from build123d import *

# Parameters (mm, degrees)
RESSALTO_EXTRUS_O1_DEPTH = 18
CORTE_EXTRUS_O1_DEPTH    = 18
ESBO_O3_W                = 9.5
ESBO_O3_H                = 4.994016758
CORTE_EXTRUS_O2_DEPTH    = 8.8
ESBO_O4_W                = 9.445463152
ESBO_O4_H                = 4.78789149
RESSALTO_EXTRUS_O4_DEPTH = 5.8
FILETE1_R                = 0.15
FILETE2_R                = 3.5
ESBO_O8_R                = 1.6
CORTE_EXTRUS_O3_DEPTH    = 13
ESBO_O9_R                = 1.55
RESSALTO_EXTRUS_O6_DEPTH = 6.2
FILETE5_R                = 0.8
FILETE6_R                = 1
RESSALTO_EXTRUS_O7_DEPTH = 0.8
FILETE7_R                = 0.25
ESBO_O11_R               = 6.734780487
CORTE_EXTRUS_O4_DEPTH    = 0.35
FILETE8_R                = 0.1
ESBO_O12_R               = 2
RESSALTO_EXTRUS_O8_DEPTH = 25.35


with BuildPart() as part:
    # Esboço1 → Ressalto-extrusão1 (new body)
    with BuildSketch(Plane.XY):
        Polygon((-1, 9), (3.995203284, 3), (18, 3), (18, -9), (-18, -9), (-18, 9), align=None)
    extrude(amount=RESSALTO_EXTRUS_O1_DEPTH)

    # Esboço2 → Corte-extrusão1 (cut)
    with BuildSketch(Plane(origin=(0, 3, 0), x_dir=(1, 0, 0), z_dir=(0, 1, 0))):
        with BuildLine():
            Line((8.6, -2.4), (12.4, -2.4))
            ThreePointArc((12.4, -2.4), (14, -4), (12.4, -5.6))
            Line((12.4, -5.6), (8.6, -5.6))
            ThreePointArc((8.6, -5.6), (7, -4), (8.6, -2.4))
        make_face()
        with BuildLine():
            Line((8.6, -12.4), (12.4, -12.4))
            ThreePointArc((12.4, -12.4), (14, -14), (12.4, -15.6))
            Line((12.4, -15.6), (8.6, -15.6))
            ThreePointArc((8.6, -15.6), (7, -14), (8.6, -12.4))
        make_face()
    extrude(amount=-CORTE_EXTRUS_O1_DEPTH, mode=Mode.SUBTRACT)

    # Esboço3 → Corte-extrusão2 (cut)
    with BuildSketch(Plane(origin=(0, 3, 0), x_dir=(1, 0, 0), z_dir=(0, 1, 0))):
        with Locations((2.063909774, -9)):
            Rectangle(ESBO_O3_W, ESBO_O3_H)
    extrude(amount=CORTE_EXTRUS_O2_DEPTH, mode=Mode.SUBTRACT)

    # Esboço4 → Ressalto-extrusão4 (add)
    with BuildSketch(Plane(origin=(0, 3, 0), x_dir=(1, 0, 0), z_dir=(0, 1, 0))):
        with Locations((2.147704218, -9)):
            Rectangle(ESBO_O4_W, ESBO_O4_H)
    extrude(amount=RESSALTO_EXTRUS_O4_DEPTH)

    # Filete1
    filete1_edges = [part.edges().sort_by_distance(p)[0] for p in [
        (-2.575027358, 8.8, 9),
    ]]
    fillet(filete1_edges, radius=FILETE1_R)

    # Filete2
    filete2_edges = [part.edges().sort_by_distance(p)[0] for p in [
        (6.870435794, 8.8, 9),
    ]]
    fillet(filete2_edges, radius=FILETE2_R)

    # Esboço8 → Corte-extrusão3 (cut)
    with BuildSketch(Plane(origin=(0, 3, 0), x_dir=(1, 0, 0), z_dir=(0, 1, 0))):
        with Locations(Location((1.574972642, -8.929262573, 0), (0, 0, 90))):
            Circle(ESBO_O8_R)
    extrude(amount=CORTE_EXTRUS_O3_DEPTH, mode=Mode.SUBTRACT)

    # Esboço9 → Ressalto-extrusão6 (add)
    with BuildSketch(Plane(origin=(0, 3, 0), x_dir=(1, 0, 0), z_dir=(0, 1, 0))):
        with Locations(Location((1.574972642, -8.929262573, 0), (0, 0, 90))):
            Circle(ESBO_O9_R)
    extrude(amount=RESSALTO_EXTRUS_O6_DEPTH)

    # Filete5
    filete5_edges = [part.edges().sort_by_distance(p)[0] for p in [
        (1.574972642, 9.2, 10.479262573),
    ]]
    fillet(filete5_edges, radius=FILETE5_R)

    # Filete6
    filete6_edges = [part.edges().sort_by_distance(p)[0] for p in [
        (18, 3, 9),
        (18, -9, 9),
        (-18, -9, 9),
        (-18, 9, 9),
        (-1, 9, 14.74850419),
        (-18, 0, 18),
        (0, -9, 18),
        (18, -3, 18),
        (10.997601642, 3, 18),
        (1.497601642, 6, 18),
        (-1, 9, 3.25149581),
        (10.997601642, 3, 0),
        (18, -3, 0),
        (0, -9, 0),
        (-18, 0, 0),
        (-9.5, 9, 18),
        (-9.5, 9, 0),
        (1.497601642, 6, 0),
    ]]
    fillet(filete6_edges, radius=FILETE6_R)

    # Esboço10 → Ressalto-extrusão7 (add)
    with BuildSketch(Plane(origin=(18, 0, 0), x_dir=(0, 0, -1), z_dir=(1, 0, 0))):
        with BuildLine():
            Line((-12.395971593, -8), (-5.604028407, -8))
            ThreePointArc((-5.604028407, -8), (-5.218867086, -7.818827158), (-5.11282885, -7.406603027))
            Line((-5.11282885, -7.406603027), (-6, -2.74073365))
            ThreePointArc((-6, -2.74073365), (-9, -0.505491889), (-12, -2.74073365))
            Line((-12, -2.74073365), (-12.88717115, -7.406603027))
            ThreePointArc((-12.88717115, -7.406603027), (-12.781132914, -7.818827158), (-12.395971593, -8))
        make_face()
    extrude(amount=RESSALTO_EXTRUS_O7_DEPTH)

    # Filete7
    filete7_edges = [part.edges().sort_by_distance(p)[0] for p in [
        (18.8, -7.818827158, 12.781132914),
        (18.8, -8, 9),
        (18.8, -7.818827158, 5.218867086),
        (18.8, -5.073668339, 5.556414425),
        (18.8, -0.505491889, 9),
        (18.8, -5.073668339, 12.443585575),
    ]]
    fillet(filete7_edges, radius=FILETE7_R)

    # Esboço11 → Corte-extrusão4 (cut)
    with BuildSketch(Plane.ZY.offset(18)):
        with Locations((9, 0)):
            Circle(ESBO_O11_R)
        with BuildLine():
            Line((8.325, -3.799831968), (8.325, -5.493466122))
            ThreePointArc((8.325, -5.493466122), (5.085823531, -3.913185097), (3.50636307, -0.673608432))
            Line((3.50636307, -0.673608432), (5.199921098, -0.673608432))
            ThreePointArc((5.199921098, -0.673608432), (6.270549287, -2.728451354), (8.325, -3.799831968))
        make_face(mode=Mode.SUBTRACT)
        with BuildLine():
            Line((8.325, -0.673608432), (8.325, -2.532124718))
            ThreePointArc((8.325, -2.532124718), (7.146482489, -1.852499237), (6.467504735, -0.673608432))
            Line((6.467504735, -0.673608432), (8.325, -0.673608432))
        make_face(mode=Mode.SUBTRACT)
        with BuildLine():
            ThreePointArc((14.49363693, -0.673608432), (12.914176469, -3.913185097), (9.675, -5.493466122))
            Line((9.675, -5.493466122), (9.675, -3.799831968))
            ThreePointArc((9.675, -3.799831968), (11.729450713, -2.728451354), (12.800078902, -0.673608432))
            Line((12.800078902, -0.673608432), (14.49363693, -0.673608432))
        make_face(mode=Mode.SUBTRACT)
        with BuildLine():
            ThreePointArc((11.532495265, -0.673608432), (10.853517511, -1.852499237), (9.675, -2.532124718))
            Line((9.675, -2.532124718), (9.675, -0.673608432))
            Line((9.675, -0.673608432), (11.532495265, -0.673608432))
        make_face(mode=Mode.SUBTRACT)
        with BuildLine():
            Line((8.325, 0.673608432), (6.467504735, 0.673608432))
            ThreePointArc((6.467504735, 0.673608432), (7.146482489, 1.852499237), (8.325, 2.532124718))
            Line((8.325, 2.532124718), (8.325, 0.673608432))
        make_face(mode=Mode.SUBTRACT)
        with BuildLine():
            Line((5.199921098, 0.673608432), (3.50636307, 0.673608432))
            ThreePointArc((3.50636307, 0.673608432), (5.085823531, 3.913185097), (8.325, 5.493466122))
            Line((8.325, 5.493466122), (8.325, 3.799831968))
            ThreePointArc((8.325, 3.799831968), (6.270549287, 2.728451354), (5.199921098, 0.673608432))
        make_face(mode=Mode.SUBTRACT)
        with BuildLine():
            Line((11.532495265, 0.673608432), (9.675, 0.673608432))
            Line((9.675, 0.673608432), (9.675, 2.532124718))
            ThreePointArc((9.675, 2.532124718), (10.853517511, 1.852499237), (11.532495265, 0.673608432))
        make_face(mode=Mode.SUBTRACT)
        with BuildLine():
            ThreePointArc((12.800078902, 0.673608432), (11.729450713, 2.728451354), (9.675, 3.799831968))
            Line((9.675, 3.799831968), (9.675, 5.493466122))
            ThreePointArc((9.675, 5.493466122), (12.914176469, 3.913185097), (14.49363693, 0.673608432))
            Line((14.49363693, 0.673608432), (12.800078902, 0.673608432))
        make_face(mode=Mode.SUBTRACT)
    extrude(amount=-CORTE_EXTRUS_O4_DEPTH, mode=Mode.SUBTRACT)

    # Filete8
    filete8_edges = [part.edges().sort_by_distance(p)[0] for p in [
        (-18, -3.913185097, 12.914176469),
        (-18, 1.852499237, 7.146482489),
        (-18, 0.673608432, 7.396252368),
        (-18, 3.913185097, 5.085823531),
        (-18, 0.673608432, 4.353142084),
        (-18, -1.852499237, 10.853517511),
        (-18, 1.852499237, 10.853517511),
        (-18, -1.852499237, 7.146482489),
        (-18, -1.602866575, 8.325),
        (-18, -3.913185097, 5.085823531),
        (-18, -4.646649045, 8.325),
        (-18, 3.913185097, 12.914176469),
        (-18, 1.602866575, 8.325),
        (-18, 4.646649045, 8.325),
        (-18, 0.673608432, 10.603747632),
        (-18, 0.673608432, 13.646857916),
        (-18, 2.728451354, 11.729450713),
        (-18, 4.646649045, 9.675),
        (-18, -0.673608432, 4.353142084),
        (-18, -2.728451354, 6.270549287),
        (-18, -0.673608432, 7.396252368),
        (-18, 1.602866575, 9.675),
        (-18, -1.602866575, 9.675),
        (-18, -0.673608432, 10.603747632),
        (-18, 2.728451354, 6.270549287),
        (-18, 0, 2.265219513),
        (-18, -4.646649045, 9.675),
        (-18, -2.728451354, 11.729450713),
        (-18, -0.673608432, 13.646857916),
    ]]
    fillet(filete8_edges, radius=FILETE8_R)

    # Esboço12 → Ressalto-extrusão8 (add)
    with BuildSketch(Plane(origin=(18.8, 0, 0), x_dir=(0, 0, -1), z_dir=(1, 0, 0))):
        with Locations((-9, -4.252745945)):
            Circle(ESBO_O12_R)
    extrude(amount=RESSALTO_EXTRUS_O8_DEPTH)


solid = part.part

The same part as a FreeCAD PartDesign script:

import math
import FreeCAD as App
import Part
import Sketcher
from FreeCAD import Vector
Q = App.Units.Quantity


def edges_at(feature, points):
    """Names of the edges that pass closest to the given points."""
    edges = feature.Shape.Edges
    near = lambda p: min(range(len(edges)), key=lambda i: edges[i].distToShape(Part.Vertex(*p))[0])
    return sorted({f"Edge{near(p) + 1}" for p in points})

doc = App.newDocument("Part")
body = doc.addObject("PartDesign::Body", "Body")

# Sketch on XY plane
sketch1 = body.newObject("Sketcher::SketchObject", "Sketch")
sketch1.AttachmentSupport = (doc.getObject("XY_Plane"), [""])
sketch1.MapMode = "FlatFace"
sketch1.addGeometry([
    Part.LineSegment(Vector(4, 3, 0), Vector(-1, 9, 0)),  # 0
    Part.LineSegment(Vector(-1, 9, 0), Vector(-18, 9, 0)),  # 1
    Part.LineSegment(Vector(-18, 9, 0), Vector(-18, -9, 0)),  # 2
    Part.LineSegment(Vector(-18, -9, 0), Vector(18, -9, 0)),  # 3
    Part.LineSegment(Vector(18, -9, 0), Vector(18, 3, 0)),  # 4
    Part.LineSegment(Vector(18, 3, 0), Vector(4, 3, 0)),  # 5
], False)
sketch1.addConstraint([
    Sketcher.Constraint("Coincident", 0, 2, 1, 1),
    Sketcher.Constraint("Coincident", 1, 2, 2, 1),
    Sketcher.Constraint("Coincident", 2, 2, 3, 1),
    Sketcher.Constraint("Coincident", 3, 2, 4, 1),
    Sketcher.Constraint("Coincident", 4, 2, 5, 1),
    Sketcher.Constraint("Coincident", 5, 2, 0, 1),
    Sketcher.Constraint("Horizontal", 1),
    Sketcher.Constraint("Vertical", 2),
    Sketcher.Constraint("Horizontal", 3),
    Sketcher.Constraint("Vertical", 4),
    Sketcher.Constraint("Horizontal", 5),
    Sketcher.Constraint("Symmetric", 1, 2, 3, 2, -1, 1),
    Sketcher.Constraint("DistanceX", 1, 2, 1, 1, Q("17 mm")),
    Sketcher.Constraint("DistanceX", 3, 1, 3, 2, Q("36 mm")),
    Sketcher.Constraint("DistanceY", 2, 2, 2, 1, Q("18 mm")),
    Sketcher.Constraint("DistanceY", 4, 1, 4, 2, Q("12 mm")),
    Sketcher.Constraint("Distance", 0, Q("7.80718 mm")),
])
pad1 = body.newObject("PartDesign::Pad", "Pad")
pad1.Profile = sketch1
pad1.Length = 18

# Sketch on XZ plane
sketch2 = body.newObject("Sketcher::SketchObject", "Sketch001")
sketch2.AttachmentSupport = (doc.getObject("XZ_Plane"), [""])
sketch2.MapMode = "FlatFace"
sketch2.AttachmentOffset = App.Placement(Vector(0, 0, -3), App.Rotation())
sketch2.addGeometry([
    Part.LineSegment(Vector(12.4, 2.4, 0), Vector(8.6, 2.4, 0)),  # 0
    Part.ArcOfCircle(Part.Circle(Vector(8.6, 4, 0), Vector(0, 0, 1), 1.6), math.radians(90), math.radians(270)),  # 1
    Part.LineSegment(Vector(8.6, 5.6, 0), Vector(12.4, 5.6, 0)),  # 2
    Part.ArcOfCircle(Part.Circle(Vector(12.4, 4, 0), Vector(0, 0, 1), 1.6), math.radians(-90), math.radians(90)),  # 3
    Part.LineSegment(Vector(12.4, 12.4, 0), Vector(8.6, 12.4, 0)),  # 4
    Part.ArcOfCircle(Part.Circle(Vector(8.6, 14, 0), Vector(0, 0, 1), 1.6), math.radians(90), math.radians(270)),  # 5
    Part.LineSegment(Vector(8.6, 15.6, 0), Vector(12.4, 15.6, 0)),  # 6
    Part.ArcOfCircle(Part.Circle(Vector(12.4, 14, 0), Vector(0, 0, 1), 1.6), math.radians(-90), math.radians(90)),  # 7
], False)
sketch2.addConstraint([
    Sketcher.Constraint("Tangent", 0, 2, 1, 2),
    Sketcher.Constraint("Tangent", 1, 1, 2, 1),
    Sketcher.Constraint("Tangent", 2, 2, 3, 2),
    Sketcher.Constraint("Tangent", 3, 1, 0, 1),
    Sketcher.Constraint("Tangent", 4, 2, 5, 2),
    Sketcher.Constraint("Tangent", 5, 1, 6, 1),
    Sketcher.Constraint("Tangent", 6, 2, 7, 2),
    Sketcher.Constraint("Tangent", 7, 1, 4, 1),
    Sketcher.Constraint("Horizontal", 0),
    Sketcher.Constraint("Horizontal", 2),
    Sketcher.Constraint("Horizontal", 4),
    Sketcher.Constraint("Horizontal", 6),
    Sketcher.Constraint("Equal", 3, 5),
    Sketcher.Constraint("Vertical", 1, 3, 5, 3),
    Sketcher.Constraint("Vertical", 3, 3, 7, 3),
    Sketcher.Constraint("Radius", 1, Q("1.6 mm")),
    Sketcher.Constraint("DistanceX", 0, 2, 0, 1, Q("3.8 mm")),
    Sketcher.Constraint("DistanceY", -1, 1, 1, 3, Q("4 mm")),
    Sketcher.Constraint("DistanceY", -1, 1, 5, 3, Q("14 mm")),
    Sketcher.Constraint("DistanceX", -1, 1, 1, 3, Q("8.6 mm")),
])
pocket1 = body.newObject("PartDesign::Pocket", "Pocket")
pocket1.Profile = sketch2
pocket1.Length = 18
pocket1.Reversed = True

# Sketch on XZ plane
sketch3 = body.newObject("Sketcher::SketchObject", "Sketch002")
sketch3.AttachmentSupport = (doc.getObject("XZ_Plane"), [""])
sketch3.MapMode = "FlatFace"
sketch3.AttachmentOffset = App.Placement(Vector(0, 0, -3), App.Rotation())
sketch3.addGeometry([
    Part.LineSegment(Vector(-2.7, 6.5, 0), Vector(-2.7, 11.5, 0)),
    Part.LineSegment(Vector(-2.7, 11.5, 0), Vector(6.8, 11.5, 0)),
    Part.LineSegment(Vector(6.8, 11.5, 0), Vector(6.8, 6.5, 0)),
    Part.LineSegment(Vector(6.8, 6.5, 0), Vector(-2.7, 6.5, 0)),
], False)
sketch3.addConstraint([
    Sketcher.Constraint("Coincident", 0, 2, 1, 1),
    Sketcher.Constraint("Coincident", 1, 2, 2, 1),
    Sketcher.Constraint("Coincident", 2, 2, 3, 1),
    Sketcher.Constraint("Coincident", 3, 2, 0, 1),
    Sketcher.Constraint("Vertical", 0),
    Sketcher.Constraint("Horizontal", 1),
    Sketcher.Constraint("Vertical", 2),
    Sketcher.Constraint("Horizontal", 3),
    Sketcher.Constraint("DistanceX", 1, 1, 1, 2, Q("9.5 mm")),
    Sketcher.Constraint("DistanceY", 0, 1, 0, 2, Q("4.994017 mm")),
    Sketcher.Constraint("DistanceX", 0, 2, -1, 1, Q("2.68609 mm")),
    Sketcher.Constraint("DistanceY", -1, 1, 0, 2, Q("11.497008 mm")),
])
pocket2 = body.newObject("PartDesign::Pocket", "Pocket001")
pocket2.Profile = sketch3
pocket2.Length = 8.8

# Sketch on XZ plane
sketch4 = body.newObject("Sketcher::SketchObject", "Sketch003")
sketch4.AttachmentSupport = (doc.getObject("XZ_Plane"), [""])
sketch4.MapMode = "FlatFace"
sketch4.AttachmentOffset = App.Placement(Vector(0, 0, -3), App.Rotation())
sketch4.addGeometry([
    Part.LineSegment(Vector(-2.6, 6.6, 0), Vector(-2.6, 11.4, 0)),
    Part.LineSegment(Vector(-2.6, 11.4, 0), Vector(6.9, 11.4, 0)),
    Part.LineSegment(Vector(6.9, 11.4, 0), Vector(6.9, 6.6, 0)),
    Part.LineSegment(Vector(6.9, 6.6, 0), Vector(-2.6, 6.6, 0)),
], False)
sketch4.addConstraint([
    Sketcher.Constraint("Coincident", 0, 2, 1, 1),
    Sketcher.Constraint("Coincident", 1, 2, 2, 1),
    Sketcher.Constraint("Coincident", 2, 2, 3, 1),
    Sketcher.Constraint("Coincident", 3, 2, 0, 1),
    Sketcher.Constraint("Vertical", 0),
    Sketcher.Constraint("Horizontal", 1),
    Sketcher.Constraint("Vertical", 2),
    Sketcher.Constraint("Horizontal", 3),
    Sketcher.Constraint("DistanceY", 0, 1, 0, 2, Q("4.787891 mm")),
    Sketcher.Constraint("DistanceX", 1, 1, 1, 2, Q("9.445463 mm")),
    Sketcher.Constraint("DistanceX", 0, 2, -1, 1, Q("2.575027 mm")),
    Sketcher.Constraint("DistanceY", -1, 1, 0, 2, Q("11.393946 mm")),
])
pad2 = body.newObject("PartDesign::Pad", "Pad001")
pad2.Profile = sketch4
pad2.Length = 5.8
pad2.Reversed = True
doc.recompute()

fillet = body.newObject("PartDesign::Fillet", "Fillet")
fillet.Base = (pad2, edges_at(pad2, [(-2.575, 8.8, 9)]))
fillet.Radius = 0.15
doc.recompute()

fillet2 = body.newObject("PartDesign::Fillet", "Fillet001")
fillet2.Base = (fillet, edges_at(fillet, [(6.87, 8.8, 9)]))
fillet2.Radius = 3.5

# Sketch on XZ plane
sketch5 = body.newObject("Sketcher::SketchObject", "Sketch004")
sketch5.AttachmentSupport = (doc.getObject("XZ_Plane"), [""])
sketch5.MapMode = "FlatFace"
sketch5.AttachmentOffset = App.Placement(Vector(0, 0, -3), App.Rotation())
sketch5.addGeometry(Part.Circle(Vector(1.6, 8.9, 0), Vector(0, 0, 1), 1.6), False)
sketch5.addConstraint([
    Sketcher.Constraint("Diameter", 0, Q("3.2 mm")),
    Sketcher.Constraint("DistanceX", -1, 1, 0, 3, Q("1.574973 mm")),
    Sketcher.Constraint("DistanceY", -1, 1, 0, 3, Q("8.929263 mm")),
])
pocket3 = body.newObject("PartDesign::Pocket", "Pocket002")
pocket3.Profile = sketch5
pocket3.Length = 13

# Sketch on XZ plane
sketch6 = body.newObject("Sketcher::SketchObject", "Sketch005")
sketch6.AttachmentSupport = (doc.getObject("XZ_Plane"), [""])
sketch6.MapMode = "FlatFace"
sketch6.AttachmentOffset = App.Placement(Vector(0, 0, -3), App.Rotation())
sketch6.addGeometry(Part.Circle(Vector(1.6, 8.9, 0), Vector(0, 0, 1), 1.6), False)
sketch6.addConstraint([
    Sketcher.Constraint("Diameter", 0, Q("3.1 mm")),
    Sketcher.Constraint("DistanceX", -1, 1, 0, 3, Q("1.574973 mm")),
    Sketcher.Constraint("DistanceY", -1, 1, 0, 3, Q("8.929263 mm")),
])
pad3 = body.newObject("PartDesign::Pad", "Pad002")
pad3.Profile = sketch6
pad3.Length = 6.2
pad3.Reversed = True
doc.recompute()

fillet3 = body.newObject("PartDesign::Fillet", "Fillet002")
fillet3.Base = (pad3, edges_at(pad3, [(1.575, 9.2, 10.479)]))
fillet3.Radius = 0.8
doc.recompute()

fillet4 = body.newObject("PartDesign::Fillet", "Fillet003")
fillet4.Base = (fillet3, edges_at(fillet3, [
    (18, 3, 9),
    (18, -9, 9),
    (-18, -9, 9),
    (-18, 9, 9),
    (-1, 9, 14.749),
    (-18, 0, 18),
    (0, -9, 18),
    (18, -3, 18),
    (10.998, 3, 18),
    (1.498, 6, 18),
    (-1, 9, 3.251),
    (10.998, 3, 0),
    (18, -3, 0),
    (0, -9, 0),
    (-18, 0, 0),
    (-9.5, 9, 18),
    (-9.5, 9, 0),
    (1.498, 6, 0),
]))
fillet4.Radius = 1

# Sketch on YZ plane
sketch7 = body.newObject("Sketcher::SketchObject", "Sketch006")
sketch7.AttachmentSupport = (doc.getObject("YZ_Plane"), [""])
sketch7.MapMode = "FlatFace"
sketch7.AttachmentOffset = App.Placement(Vector(0, 0, 18), App.Rotation())
sketch7.addGeometry([
    Part.LineSegment(Vector(-8, 12.395972, 0), Vector(-8, 5.604028, 0)),  # 0
    Part.ArcOfCircle(Part.Circle(Vector(-7.5, 5.604028, 0), Vector(0, 0, 1), 0.5), math.radians(180), math.radians(280.765741)),  # 1
    Part.LineSegment(Vector(-7.406603, 5.112829, 0), Vector(-2.740734, 6, 0)),  # 2
    Part.ArcOfCircle(Part.Circle(Vector(-3.636318, 9, 0), Vector(0, 0, 1), 3.130826), math.radians(-73.37816), math.radians(73.37816)),  # 3
    Part.LineSegment(Vector(-2.740734, 12, 0), Vector(-7.406603, 12.887171, 0)),  # 4
    Part.ArcOfCircle(Part.Circle(Vector(-7.5, 12.395972, 0), Vector(0, 0, 1), 0.5), math.radians(79.234259), math.radians(180)),  # 5
], False)
sketch7.addConstraint([
    Sketcher.Constraint("Coincident", 0, 2, 1, 1),
    Sketcher.Constraint("Coincident", 1, 2, 2, 1),
    Sketcher.Constraint("Coincident", 2, 2, 3, 1),
    Sketcher.Constraint("Coincident", 3, 2, 4, 1),
    Sketcher.Constraint("Coincident", 4, 2, 5, 1),
    Sketcher.Constraint("Coincident", 5, 2, 0, 1),
    Sketcher.Constraint("Vertical", 0),
    Sketcher.Constraint("Radius", 1, Q("0.5 mm")),
    Sketcher.Constraint("Radius", 5, Q("0.5 mm")),
    Sketcher.Constraint("DistanceY", -1, 1, 3, 3, Q("9 mm")),
    Sketcher.Constraint("DistanceX", 0, 2, -1, 1, Q("8 mm")),
    Sketcher.Constraint("DistanceY", -1, 1, 2, 2, Q("6 mm")),
    Sketcher.Constraint("DistanceY", -1, 1, 3, 2, Q("12 mm")),
    Sketcher.Constraint("Radius", 3, Q("3.130826 mm")),
    Sketcher.Constraint("DistanceY", 1, 2, 1, 3, Q("0.4912 mm")),
    Sketcher.Constraint("DistanceY", 1, 2, 0, 2, Q("0.4912 mm")),
    Sketcher.Constraint("DistanceY", 5, 3, 4, 2, Q("0.4912 mm")),
    Sketcher.Constraint("DistanceY", 5, 2, 4, 2, Q("0.4912 mm")),
    Sketcher.Constraint("DistanceY", 0, 2, 0, 1, Q("6.791943 mm")),
    Sketcher.Constraint("DistanceY", -1, 1, 1, 3, Q("5.604028 mm")),
    Sketcher.Constraint("DistanceX", 1, 2, 2, 2, Q("4.665869 mm")),
])
pad4 = body.newObject("PartDesign::Pad", "Pad003")
pad4.Profile = sketch7
pad4.Length = 0.8
doc.recompute()

fillet5 = body.newObject("PartDesign::Fillet", "Fillet004")
fillet5.Base = (pad4, edges_at(pad4, [
    (18.8, -7.819, 12.781),
    (18.8, -8, 9),
    (18.8, -7.819, 5.219),
    (18.8, -5.074, 5.556),
    (18.8, -0.505, 9),
    (18.8, -5.074, 12.444),
]))
fillet5.Radius = 0.25

# Sketch on YZ plane
sketch8 = body.newObject("Sketcher::SketchObject", "Sketch007")
sketch8.AttachmentSupport = (doc.getObject("YZ_Plane"), [""])
sketch8.MapMode = "FlatFace"
sketch8.AttachmentOffset = App.Placement(Vector(0, 0, -18), App.Rotation())
sketch8.addGeometry([
    Part.Circle(Vector(0, 9, 0), Vector(0, 0, 1), 6.7),  # 0
    Part.ArcOfCircle(Part.Circle(Vector(0, 9, 0), Vector(0, 0, 1), 3.9), math.radians(-170), math.radians(-100)),  # 1
    Part.LineSegment(Vector(-3.8, 8.3, 0), Vector(-5.5, 8.3, 0)),  # 2
    Part.ArcOfCircle(Part.Circle(Vector(0, 9, 0), Vector(0, 0, 1), 5.5), math.radians(-173), math.radians(-97)),  # 3
    Part.LineSegment(Vector(-0.7, 3.5, 0), Vector(-0.7, 5.2, 0)),  # 4
    Part.LineSegment(Vector(-0.7, 6.5, 0), Vector(-0.7, 8.3, 0)),  # 5
    Part.LineSegment(Vector(-0.7, 8.3, 0), Vector(-2.5, 8.3, 0)),  # 6
    Part.ArcOfCircle(Part.Circle(Vector(0, 9, 0), Vector(0, 0, 1), 2.6), math.radians(-165), math.radians(-105)),  # 7
    Part.LineSegment(Vector(-0.7, 12.8, 0), Vector(-0.7, 14.5, 0)),  # 8
    Part.ArcOfCircle(Part.Circle(Vector(0, 9, 0), Vector(0, 0, 1), 5.5), math.radians(97), math.radians(173)),  # 9
    Part.LineSegment(Vector(-5.5, 9.7, 0), Vector(-3.8, 9.7, 0)),  # 10
    Part.ArcOfCircle(Part.Circle(Vector(0, 9, 0), Vector(0, 0, 1), 3.9), math.radians(100), math.radians(170)),  # 11
    Part.LineSegment(Vector(-0.7, 9.7, 0), Vector(-0.7, 11.5, 0)),  # 12
    Part.ArcOfCircle(Part.Circle(Vector(0, 9, 0), Vector(0, 0, 1), 2.6), math.radians(105), math.radians(165)),  # 13
    Part.LineSegment(Vector(-2.5, 9.7, 0), Vector(-0.7, 9.7, 0)),  # 14
    Part.LineSegment(Vector(2.5, 8.3, 0), Vector(0.7, 8.3, 0)),  # 15
    Part.LineSegment(Vector(0.7, 8.3, 0), Vector(0.7, 6.5, 0)),  # 16
    Part.ArcOfCircle(Part.Circle(Vector(0, 9, 0), Vector(0, 0, 1), 2.6), math.radians(-75), math.radians(-15)),  # 17
    Part.ArcOfCircle(Part.Circle(Vector(0, 9, 0), Vector(0, 0, 1), 3.9), math.radians(-80), math.radians(-10)),  # 18
    Part.LineSegment(Vector(0.7, 5.2, 0), Vector(0.7, 3.5, 0)),  # 19
    Part.ArcOfCircle(Part.Circle(Vector(0, 9, 0), Vector(0, 0, 1), 5.5), math.radians(-83), math.radians(-7)),  # 20
    Part.LineSegment(Vector(5.5, 8.3, 0), Vector(3.8, 8.3, 0)),  # 21
    Part.ArcOfCircle(Part.Circle(Vector(0, 9, 0), Vector(0, 0, 1), 2.6), math.radians(15), math.radians(75)),  # 22
    Part.LineSegment(Vector(0.7, 11.5, 0), Vector(0.7, 9.7, 0)),  # 23
    Part.LineSegment(Vector(0.7, 9.7, 0), Vector(2.5, 9.7, 0)),  # 24
    Part.LineSegment(Vector(0.7, 14.5, 0), Vector(0.7, 12.8, 0)),  # 25
    Part.ArcOfCircle(Part.Circle(Vector(0, 9, 0), Vector(0, 0, 1), 3.9), math.radians(10), math.radians(80)),  # 26
    Part.LineSegment(Vector(3.8, 9.7, 0), Vector(5.5, 9.7, 0)),  # 27
    Part.ArcOfCircle(Part.Circle(Vector(0, 9, 0), Vector(0, 0, 1), 5.5), math.radians(7), math.radians(83)),  # 28
], False)
sketch8.addConstraint([
    Sketcher.Constraint("Coincident", 1, 1, 2, 1),
    Sketcher.Constraint("Coincident", 2, 2, 3, 1),
    Sketcher.Constraint("Coincident", 3, 2, 4, 1),
    Sketcher.Constraint("Coincident", 4, 2, 1, 2),
    Sketcher.Constraint("Coincident", 5, 2, 6, 1),
    Sketcher.Constraint("Coincident", 6, 2, 7, 1),
    Sketcher.Constraint("Coincident", 7, 2, 5, 1),
    Sketcher.Constraint("Coincident", 8, 2, 9, 1),
    Sketcher.Constraint("Coincident", 9, 2, 10, 1),
    Sketcher.Constraint("Coincident", 10, 2, 11, 2),
    Sketcher.Constraint("Coincident", 11, 1, 8, 1),
    Sketcher.Constraint("Coincident", 12, 2, 13, 1),
    Sketcher.Constraint("Coincident", 13, 2, 14, 1),
    Sketcher.Constraint("Coincident", 14, 2, 12, 1),
    Sketcher.Constraint("Coincident", 15, 2, 16, 1),
    Sketcher.Constraint("Coincident", 16, 2, 17, 1),
    Sketcher.Constraint("Coincident", 17, 2, 15, 1),
    Sketcher.Constraint("Coincident", 18, 1, 19, 1),
    Sketcher.Constraint("Coincident", 19, 2, 20, 1),
    Sketcher.Constraint("Coincident", 20, 2, 21, 1),
    Sketcher.Constraint("Coincident", 21, 2, 18, 2),
    Sketcher.Constraint("Coincident", 22, 2, 23, 1),
    Sketcher.Constraint("Coincident", 23, 2, 24, 1),
    Sketcher.Constraint("Coincident", 24, 2, 22, 1),
    Sketcher.Constraint("Coincident", 25, 2, 26, 2),
    Sketcher.Constraint("Coincident", 26, 1, 27, 1),
    Sketcher.Constraint("Coincident", 27, 2, 28, 1),
    Sketcher.Constraint("Coincident", 28, 2, 25, 1),
    Sketcher.Constraint("Horizontal", 2),
    Sketcher.Constraint("Vertical", 4),
    Sketcher.Constraint("Vertical", 5),
    Sketcher.Constraint("Horizontal", 6),
    Sketcher.Constraint("Vertical", 8),
    Sketcher.Constraint("Horizontal", 10),
    Sketcher.Constraint("Vertical", 12),
    Sketcher.Constraint("Horizontal", 14),
    Sketcher.Constraint("Horizontal", 15),
    Sketcher.Constraint("Vertical", 16),
    Sketcher.Constraint("Vertical", 19),
    Sketcher.Constraint("Horizontal", 21),
    Sketcher.Constraint("Vertical", 23),
    Sketcher.Constraint("Horizontal", 24),
    Sketcher.Constraint("Vertical", 25),
    Sketcher.Constraint("Horizontal", 27),
    Sketcher.Constraint("Coincident", 1, 3, 0, 3),
    Sketcher.Constraint("Coincident", 3, 3, 0, 3),
    Sketcher.Constraint("Coincident", 7, 3, 0, 3),
    Sketcher.Constraint("Coincident", 9, 3, 0, 3),
    Sketcher.Constraint("Coincident", 11, 3, 0, 3),
    Sketcher.Constraint("Coincident", 13, 3, 0, 3),
    Sketcher.Constraint("Coincident", 17, 3, 0, 3),
    Sketcher.Constraint("Coincident", 18, 3, 0, 3),
    Sketcher.Constraint("Coincident", 20, 3, 0, 3),
    Sketcher.Constraint("Coincident", 22, 3, 0, 3),
    Sketcher.Constraint("Coincident", 26, 3, 0, 3),
    Sketcher.Constraint("Coincident", 28, 3, 0, 3),
    Sketcher.Constraint("Equal", 3, 9),
    Sketcher.Constraint("Equal", 1, 11),
    Sketcher.Constraint("Equal", 7, 13),
    Sketcher.Constraint("Equal", 13, 17),
    Sketcher.Constraint("Equal", 11, 18),
    Sketcher.Constraint("Equal", 9, 20),
    Sketcher.Constraint("Equal", 17, 22),
    Sketcher.Constraint("Equal", 18, 26),
    Sketcher.Constraint("Equal", 20, 28),
    Sketcher.Constraint("Symmetric", 5, 2, 15, 2, -2),
    Sketcher.Constraint("Symmetric", 4, 2, 18, 1, -2),
    Sketcher.Constraint("Symmetric", 14, 2, 23, 2, -2),
    Sketcher.Constraint("Horizontal", 2, 2, 5, 2),
    Sketcher.Constraint("Horizontal", 10, 2, 13, 2),
    Sketcher.Constraint("Horizontal", 17, 2, 20, 2),
    Sketcher.Constraint("Horizontal", 11, 1, 25, 2),
    Sketcher.Constraint("Horizontal", 24, 2, 26, 1),
    Sketcher.Constraint("Vertical", 4, 2, 5, 2),
    Sketcher.Constraint("Vertical", 7, 2, 8, 2),
    Sketcher.Constraint("Vertical", 2, 2, 9, 2),
    Sketcher.Constraint("Vertical", 11, 1, 12, 2),
    Sketcher.Constraint("DistanceY", -1, 1, 0, 3, Q("9 mm")),
    Sketcher.Constraint("Diameter", 0, Q("13.469561 mm")),
    Sketcher.Constraint("Radius", 1, Q("3.85932 mm")),
    Sketcher.Constraint("Radius", 3, Q("5.53478 mm")),
    Sketcher.Constraint("Radius", 7, Q("2.62055 mm")),
    Sketcher.Constraint("DistanceY", 2, 2, 9, 2, Q("1.35 mm")),
    Sketcher.Constraint("DistanceY", 4, 1, 4, 2, Q("1.693558 mm")),
])
pocket4 = body.newObject("PartDesign::Pocket", "Pocket003")
pocket4.Profile = sketch8
pocket4.Length = 0.35
pocket4.Reversed = True
doc.recompute()

fillet6 = body.newObject("PartDesign::Fillet", "Fillet005")
fillet6.Base = (pocket4, edges_at(pocket4, [
    (-18, -3.913, 12.914),
    (-18, 1.852, 7.146),
    (-18, 0.674, 7.396),
    (-18, 3.913, 5.086),
    (-18, 0.674, 4.353),
    (-18, -1.852, 10.854),
    (-18, 1.852, 10.854),
    (-18, -1.852, 7.146),
    (-18, -1.603, 8.325),
    (-18, -3.913, 5.086),
    (-18, -4.647, 8.325),
    (-18, 3.913, 12.914),
    (-18, 1.603, 8.325),
    (-18, 4.647, 8.325),
    (-18, 0.674, 10.604),
    (-18, 0.674, 13.647),
    (-18, 2.728, 11.729),
    (-18, 4.647, 9.675),
    (-18, -0.674, 4.353),
    (-18, -2.728, 6.271),
    (-18, -0.674, 7.396),
    (-18, 1.603, 9.675),
    (-18, -1.603, 9.675),
    (-18, -0.674, 10.604),
    (-18, 2.728, 6.271),
    (-18, 0, 2.265),
    (-18, -4.647, 9.675),
    (-18, -2.728, 11.729),
    (-18, -0.674, 13.647),
]))
fillet6.Radius = 0.1

# Sketch on YZ plane
sketch9 = body.newObject("Sketcher::SketchObject", "Sketch008")
sketch9.AttachmentSupport = (doc.getObject("YZ_Plane"), [""])
sketch9.MapMode = "FlatFace"
sketch9.AttachmentOffset = App.Placement(Vector(0, 0, 18.8), App.Rotation())
sketch9.addGeometry(Part.Circle(Vector(-4.3, 9, 0), Vector(0, 0, 1), 2), False)
sketch9.addConstraint([
    Sketcher.Constraint("Diameter", 0, Q("4 mm")),
    Sketcher.Constraint("DistanceY", -1, 1, 0, 3, Q("9 mm")),
    Sketcher.Constraint("DistanceX", 0, 3, -1, 1, Q("4.252746 mm")),
])
pad5 = body.newObject("PartDesign::Pad", "Pad004")
pad5.Profile = sketch9
pad5.Length = 25.35

doc.recompute()
